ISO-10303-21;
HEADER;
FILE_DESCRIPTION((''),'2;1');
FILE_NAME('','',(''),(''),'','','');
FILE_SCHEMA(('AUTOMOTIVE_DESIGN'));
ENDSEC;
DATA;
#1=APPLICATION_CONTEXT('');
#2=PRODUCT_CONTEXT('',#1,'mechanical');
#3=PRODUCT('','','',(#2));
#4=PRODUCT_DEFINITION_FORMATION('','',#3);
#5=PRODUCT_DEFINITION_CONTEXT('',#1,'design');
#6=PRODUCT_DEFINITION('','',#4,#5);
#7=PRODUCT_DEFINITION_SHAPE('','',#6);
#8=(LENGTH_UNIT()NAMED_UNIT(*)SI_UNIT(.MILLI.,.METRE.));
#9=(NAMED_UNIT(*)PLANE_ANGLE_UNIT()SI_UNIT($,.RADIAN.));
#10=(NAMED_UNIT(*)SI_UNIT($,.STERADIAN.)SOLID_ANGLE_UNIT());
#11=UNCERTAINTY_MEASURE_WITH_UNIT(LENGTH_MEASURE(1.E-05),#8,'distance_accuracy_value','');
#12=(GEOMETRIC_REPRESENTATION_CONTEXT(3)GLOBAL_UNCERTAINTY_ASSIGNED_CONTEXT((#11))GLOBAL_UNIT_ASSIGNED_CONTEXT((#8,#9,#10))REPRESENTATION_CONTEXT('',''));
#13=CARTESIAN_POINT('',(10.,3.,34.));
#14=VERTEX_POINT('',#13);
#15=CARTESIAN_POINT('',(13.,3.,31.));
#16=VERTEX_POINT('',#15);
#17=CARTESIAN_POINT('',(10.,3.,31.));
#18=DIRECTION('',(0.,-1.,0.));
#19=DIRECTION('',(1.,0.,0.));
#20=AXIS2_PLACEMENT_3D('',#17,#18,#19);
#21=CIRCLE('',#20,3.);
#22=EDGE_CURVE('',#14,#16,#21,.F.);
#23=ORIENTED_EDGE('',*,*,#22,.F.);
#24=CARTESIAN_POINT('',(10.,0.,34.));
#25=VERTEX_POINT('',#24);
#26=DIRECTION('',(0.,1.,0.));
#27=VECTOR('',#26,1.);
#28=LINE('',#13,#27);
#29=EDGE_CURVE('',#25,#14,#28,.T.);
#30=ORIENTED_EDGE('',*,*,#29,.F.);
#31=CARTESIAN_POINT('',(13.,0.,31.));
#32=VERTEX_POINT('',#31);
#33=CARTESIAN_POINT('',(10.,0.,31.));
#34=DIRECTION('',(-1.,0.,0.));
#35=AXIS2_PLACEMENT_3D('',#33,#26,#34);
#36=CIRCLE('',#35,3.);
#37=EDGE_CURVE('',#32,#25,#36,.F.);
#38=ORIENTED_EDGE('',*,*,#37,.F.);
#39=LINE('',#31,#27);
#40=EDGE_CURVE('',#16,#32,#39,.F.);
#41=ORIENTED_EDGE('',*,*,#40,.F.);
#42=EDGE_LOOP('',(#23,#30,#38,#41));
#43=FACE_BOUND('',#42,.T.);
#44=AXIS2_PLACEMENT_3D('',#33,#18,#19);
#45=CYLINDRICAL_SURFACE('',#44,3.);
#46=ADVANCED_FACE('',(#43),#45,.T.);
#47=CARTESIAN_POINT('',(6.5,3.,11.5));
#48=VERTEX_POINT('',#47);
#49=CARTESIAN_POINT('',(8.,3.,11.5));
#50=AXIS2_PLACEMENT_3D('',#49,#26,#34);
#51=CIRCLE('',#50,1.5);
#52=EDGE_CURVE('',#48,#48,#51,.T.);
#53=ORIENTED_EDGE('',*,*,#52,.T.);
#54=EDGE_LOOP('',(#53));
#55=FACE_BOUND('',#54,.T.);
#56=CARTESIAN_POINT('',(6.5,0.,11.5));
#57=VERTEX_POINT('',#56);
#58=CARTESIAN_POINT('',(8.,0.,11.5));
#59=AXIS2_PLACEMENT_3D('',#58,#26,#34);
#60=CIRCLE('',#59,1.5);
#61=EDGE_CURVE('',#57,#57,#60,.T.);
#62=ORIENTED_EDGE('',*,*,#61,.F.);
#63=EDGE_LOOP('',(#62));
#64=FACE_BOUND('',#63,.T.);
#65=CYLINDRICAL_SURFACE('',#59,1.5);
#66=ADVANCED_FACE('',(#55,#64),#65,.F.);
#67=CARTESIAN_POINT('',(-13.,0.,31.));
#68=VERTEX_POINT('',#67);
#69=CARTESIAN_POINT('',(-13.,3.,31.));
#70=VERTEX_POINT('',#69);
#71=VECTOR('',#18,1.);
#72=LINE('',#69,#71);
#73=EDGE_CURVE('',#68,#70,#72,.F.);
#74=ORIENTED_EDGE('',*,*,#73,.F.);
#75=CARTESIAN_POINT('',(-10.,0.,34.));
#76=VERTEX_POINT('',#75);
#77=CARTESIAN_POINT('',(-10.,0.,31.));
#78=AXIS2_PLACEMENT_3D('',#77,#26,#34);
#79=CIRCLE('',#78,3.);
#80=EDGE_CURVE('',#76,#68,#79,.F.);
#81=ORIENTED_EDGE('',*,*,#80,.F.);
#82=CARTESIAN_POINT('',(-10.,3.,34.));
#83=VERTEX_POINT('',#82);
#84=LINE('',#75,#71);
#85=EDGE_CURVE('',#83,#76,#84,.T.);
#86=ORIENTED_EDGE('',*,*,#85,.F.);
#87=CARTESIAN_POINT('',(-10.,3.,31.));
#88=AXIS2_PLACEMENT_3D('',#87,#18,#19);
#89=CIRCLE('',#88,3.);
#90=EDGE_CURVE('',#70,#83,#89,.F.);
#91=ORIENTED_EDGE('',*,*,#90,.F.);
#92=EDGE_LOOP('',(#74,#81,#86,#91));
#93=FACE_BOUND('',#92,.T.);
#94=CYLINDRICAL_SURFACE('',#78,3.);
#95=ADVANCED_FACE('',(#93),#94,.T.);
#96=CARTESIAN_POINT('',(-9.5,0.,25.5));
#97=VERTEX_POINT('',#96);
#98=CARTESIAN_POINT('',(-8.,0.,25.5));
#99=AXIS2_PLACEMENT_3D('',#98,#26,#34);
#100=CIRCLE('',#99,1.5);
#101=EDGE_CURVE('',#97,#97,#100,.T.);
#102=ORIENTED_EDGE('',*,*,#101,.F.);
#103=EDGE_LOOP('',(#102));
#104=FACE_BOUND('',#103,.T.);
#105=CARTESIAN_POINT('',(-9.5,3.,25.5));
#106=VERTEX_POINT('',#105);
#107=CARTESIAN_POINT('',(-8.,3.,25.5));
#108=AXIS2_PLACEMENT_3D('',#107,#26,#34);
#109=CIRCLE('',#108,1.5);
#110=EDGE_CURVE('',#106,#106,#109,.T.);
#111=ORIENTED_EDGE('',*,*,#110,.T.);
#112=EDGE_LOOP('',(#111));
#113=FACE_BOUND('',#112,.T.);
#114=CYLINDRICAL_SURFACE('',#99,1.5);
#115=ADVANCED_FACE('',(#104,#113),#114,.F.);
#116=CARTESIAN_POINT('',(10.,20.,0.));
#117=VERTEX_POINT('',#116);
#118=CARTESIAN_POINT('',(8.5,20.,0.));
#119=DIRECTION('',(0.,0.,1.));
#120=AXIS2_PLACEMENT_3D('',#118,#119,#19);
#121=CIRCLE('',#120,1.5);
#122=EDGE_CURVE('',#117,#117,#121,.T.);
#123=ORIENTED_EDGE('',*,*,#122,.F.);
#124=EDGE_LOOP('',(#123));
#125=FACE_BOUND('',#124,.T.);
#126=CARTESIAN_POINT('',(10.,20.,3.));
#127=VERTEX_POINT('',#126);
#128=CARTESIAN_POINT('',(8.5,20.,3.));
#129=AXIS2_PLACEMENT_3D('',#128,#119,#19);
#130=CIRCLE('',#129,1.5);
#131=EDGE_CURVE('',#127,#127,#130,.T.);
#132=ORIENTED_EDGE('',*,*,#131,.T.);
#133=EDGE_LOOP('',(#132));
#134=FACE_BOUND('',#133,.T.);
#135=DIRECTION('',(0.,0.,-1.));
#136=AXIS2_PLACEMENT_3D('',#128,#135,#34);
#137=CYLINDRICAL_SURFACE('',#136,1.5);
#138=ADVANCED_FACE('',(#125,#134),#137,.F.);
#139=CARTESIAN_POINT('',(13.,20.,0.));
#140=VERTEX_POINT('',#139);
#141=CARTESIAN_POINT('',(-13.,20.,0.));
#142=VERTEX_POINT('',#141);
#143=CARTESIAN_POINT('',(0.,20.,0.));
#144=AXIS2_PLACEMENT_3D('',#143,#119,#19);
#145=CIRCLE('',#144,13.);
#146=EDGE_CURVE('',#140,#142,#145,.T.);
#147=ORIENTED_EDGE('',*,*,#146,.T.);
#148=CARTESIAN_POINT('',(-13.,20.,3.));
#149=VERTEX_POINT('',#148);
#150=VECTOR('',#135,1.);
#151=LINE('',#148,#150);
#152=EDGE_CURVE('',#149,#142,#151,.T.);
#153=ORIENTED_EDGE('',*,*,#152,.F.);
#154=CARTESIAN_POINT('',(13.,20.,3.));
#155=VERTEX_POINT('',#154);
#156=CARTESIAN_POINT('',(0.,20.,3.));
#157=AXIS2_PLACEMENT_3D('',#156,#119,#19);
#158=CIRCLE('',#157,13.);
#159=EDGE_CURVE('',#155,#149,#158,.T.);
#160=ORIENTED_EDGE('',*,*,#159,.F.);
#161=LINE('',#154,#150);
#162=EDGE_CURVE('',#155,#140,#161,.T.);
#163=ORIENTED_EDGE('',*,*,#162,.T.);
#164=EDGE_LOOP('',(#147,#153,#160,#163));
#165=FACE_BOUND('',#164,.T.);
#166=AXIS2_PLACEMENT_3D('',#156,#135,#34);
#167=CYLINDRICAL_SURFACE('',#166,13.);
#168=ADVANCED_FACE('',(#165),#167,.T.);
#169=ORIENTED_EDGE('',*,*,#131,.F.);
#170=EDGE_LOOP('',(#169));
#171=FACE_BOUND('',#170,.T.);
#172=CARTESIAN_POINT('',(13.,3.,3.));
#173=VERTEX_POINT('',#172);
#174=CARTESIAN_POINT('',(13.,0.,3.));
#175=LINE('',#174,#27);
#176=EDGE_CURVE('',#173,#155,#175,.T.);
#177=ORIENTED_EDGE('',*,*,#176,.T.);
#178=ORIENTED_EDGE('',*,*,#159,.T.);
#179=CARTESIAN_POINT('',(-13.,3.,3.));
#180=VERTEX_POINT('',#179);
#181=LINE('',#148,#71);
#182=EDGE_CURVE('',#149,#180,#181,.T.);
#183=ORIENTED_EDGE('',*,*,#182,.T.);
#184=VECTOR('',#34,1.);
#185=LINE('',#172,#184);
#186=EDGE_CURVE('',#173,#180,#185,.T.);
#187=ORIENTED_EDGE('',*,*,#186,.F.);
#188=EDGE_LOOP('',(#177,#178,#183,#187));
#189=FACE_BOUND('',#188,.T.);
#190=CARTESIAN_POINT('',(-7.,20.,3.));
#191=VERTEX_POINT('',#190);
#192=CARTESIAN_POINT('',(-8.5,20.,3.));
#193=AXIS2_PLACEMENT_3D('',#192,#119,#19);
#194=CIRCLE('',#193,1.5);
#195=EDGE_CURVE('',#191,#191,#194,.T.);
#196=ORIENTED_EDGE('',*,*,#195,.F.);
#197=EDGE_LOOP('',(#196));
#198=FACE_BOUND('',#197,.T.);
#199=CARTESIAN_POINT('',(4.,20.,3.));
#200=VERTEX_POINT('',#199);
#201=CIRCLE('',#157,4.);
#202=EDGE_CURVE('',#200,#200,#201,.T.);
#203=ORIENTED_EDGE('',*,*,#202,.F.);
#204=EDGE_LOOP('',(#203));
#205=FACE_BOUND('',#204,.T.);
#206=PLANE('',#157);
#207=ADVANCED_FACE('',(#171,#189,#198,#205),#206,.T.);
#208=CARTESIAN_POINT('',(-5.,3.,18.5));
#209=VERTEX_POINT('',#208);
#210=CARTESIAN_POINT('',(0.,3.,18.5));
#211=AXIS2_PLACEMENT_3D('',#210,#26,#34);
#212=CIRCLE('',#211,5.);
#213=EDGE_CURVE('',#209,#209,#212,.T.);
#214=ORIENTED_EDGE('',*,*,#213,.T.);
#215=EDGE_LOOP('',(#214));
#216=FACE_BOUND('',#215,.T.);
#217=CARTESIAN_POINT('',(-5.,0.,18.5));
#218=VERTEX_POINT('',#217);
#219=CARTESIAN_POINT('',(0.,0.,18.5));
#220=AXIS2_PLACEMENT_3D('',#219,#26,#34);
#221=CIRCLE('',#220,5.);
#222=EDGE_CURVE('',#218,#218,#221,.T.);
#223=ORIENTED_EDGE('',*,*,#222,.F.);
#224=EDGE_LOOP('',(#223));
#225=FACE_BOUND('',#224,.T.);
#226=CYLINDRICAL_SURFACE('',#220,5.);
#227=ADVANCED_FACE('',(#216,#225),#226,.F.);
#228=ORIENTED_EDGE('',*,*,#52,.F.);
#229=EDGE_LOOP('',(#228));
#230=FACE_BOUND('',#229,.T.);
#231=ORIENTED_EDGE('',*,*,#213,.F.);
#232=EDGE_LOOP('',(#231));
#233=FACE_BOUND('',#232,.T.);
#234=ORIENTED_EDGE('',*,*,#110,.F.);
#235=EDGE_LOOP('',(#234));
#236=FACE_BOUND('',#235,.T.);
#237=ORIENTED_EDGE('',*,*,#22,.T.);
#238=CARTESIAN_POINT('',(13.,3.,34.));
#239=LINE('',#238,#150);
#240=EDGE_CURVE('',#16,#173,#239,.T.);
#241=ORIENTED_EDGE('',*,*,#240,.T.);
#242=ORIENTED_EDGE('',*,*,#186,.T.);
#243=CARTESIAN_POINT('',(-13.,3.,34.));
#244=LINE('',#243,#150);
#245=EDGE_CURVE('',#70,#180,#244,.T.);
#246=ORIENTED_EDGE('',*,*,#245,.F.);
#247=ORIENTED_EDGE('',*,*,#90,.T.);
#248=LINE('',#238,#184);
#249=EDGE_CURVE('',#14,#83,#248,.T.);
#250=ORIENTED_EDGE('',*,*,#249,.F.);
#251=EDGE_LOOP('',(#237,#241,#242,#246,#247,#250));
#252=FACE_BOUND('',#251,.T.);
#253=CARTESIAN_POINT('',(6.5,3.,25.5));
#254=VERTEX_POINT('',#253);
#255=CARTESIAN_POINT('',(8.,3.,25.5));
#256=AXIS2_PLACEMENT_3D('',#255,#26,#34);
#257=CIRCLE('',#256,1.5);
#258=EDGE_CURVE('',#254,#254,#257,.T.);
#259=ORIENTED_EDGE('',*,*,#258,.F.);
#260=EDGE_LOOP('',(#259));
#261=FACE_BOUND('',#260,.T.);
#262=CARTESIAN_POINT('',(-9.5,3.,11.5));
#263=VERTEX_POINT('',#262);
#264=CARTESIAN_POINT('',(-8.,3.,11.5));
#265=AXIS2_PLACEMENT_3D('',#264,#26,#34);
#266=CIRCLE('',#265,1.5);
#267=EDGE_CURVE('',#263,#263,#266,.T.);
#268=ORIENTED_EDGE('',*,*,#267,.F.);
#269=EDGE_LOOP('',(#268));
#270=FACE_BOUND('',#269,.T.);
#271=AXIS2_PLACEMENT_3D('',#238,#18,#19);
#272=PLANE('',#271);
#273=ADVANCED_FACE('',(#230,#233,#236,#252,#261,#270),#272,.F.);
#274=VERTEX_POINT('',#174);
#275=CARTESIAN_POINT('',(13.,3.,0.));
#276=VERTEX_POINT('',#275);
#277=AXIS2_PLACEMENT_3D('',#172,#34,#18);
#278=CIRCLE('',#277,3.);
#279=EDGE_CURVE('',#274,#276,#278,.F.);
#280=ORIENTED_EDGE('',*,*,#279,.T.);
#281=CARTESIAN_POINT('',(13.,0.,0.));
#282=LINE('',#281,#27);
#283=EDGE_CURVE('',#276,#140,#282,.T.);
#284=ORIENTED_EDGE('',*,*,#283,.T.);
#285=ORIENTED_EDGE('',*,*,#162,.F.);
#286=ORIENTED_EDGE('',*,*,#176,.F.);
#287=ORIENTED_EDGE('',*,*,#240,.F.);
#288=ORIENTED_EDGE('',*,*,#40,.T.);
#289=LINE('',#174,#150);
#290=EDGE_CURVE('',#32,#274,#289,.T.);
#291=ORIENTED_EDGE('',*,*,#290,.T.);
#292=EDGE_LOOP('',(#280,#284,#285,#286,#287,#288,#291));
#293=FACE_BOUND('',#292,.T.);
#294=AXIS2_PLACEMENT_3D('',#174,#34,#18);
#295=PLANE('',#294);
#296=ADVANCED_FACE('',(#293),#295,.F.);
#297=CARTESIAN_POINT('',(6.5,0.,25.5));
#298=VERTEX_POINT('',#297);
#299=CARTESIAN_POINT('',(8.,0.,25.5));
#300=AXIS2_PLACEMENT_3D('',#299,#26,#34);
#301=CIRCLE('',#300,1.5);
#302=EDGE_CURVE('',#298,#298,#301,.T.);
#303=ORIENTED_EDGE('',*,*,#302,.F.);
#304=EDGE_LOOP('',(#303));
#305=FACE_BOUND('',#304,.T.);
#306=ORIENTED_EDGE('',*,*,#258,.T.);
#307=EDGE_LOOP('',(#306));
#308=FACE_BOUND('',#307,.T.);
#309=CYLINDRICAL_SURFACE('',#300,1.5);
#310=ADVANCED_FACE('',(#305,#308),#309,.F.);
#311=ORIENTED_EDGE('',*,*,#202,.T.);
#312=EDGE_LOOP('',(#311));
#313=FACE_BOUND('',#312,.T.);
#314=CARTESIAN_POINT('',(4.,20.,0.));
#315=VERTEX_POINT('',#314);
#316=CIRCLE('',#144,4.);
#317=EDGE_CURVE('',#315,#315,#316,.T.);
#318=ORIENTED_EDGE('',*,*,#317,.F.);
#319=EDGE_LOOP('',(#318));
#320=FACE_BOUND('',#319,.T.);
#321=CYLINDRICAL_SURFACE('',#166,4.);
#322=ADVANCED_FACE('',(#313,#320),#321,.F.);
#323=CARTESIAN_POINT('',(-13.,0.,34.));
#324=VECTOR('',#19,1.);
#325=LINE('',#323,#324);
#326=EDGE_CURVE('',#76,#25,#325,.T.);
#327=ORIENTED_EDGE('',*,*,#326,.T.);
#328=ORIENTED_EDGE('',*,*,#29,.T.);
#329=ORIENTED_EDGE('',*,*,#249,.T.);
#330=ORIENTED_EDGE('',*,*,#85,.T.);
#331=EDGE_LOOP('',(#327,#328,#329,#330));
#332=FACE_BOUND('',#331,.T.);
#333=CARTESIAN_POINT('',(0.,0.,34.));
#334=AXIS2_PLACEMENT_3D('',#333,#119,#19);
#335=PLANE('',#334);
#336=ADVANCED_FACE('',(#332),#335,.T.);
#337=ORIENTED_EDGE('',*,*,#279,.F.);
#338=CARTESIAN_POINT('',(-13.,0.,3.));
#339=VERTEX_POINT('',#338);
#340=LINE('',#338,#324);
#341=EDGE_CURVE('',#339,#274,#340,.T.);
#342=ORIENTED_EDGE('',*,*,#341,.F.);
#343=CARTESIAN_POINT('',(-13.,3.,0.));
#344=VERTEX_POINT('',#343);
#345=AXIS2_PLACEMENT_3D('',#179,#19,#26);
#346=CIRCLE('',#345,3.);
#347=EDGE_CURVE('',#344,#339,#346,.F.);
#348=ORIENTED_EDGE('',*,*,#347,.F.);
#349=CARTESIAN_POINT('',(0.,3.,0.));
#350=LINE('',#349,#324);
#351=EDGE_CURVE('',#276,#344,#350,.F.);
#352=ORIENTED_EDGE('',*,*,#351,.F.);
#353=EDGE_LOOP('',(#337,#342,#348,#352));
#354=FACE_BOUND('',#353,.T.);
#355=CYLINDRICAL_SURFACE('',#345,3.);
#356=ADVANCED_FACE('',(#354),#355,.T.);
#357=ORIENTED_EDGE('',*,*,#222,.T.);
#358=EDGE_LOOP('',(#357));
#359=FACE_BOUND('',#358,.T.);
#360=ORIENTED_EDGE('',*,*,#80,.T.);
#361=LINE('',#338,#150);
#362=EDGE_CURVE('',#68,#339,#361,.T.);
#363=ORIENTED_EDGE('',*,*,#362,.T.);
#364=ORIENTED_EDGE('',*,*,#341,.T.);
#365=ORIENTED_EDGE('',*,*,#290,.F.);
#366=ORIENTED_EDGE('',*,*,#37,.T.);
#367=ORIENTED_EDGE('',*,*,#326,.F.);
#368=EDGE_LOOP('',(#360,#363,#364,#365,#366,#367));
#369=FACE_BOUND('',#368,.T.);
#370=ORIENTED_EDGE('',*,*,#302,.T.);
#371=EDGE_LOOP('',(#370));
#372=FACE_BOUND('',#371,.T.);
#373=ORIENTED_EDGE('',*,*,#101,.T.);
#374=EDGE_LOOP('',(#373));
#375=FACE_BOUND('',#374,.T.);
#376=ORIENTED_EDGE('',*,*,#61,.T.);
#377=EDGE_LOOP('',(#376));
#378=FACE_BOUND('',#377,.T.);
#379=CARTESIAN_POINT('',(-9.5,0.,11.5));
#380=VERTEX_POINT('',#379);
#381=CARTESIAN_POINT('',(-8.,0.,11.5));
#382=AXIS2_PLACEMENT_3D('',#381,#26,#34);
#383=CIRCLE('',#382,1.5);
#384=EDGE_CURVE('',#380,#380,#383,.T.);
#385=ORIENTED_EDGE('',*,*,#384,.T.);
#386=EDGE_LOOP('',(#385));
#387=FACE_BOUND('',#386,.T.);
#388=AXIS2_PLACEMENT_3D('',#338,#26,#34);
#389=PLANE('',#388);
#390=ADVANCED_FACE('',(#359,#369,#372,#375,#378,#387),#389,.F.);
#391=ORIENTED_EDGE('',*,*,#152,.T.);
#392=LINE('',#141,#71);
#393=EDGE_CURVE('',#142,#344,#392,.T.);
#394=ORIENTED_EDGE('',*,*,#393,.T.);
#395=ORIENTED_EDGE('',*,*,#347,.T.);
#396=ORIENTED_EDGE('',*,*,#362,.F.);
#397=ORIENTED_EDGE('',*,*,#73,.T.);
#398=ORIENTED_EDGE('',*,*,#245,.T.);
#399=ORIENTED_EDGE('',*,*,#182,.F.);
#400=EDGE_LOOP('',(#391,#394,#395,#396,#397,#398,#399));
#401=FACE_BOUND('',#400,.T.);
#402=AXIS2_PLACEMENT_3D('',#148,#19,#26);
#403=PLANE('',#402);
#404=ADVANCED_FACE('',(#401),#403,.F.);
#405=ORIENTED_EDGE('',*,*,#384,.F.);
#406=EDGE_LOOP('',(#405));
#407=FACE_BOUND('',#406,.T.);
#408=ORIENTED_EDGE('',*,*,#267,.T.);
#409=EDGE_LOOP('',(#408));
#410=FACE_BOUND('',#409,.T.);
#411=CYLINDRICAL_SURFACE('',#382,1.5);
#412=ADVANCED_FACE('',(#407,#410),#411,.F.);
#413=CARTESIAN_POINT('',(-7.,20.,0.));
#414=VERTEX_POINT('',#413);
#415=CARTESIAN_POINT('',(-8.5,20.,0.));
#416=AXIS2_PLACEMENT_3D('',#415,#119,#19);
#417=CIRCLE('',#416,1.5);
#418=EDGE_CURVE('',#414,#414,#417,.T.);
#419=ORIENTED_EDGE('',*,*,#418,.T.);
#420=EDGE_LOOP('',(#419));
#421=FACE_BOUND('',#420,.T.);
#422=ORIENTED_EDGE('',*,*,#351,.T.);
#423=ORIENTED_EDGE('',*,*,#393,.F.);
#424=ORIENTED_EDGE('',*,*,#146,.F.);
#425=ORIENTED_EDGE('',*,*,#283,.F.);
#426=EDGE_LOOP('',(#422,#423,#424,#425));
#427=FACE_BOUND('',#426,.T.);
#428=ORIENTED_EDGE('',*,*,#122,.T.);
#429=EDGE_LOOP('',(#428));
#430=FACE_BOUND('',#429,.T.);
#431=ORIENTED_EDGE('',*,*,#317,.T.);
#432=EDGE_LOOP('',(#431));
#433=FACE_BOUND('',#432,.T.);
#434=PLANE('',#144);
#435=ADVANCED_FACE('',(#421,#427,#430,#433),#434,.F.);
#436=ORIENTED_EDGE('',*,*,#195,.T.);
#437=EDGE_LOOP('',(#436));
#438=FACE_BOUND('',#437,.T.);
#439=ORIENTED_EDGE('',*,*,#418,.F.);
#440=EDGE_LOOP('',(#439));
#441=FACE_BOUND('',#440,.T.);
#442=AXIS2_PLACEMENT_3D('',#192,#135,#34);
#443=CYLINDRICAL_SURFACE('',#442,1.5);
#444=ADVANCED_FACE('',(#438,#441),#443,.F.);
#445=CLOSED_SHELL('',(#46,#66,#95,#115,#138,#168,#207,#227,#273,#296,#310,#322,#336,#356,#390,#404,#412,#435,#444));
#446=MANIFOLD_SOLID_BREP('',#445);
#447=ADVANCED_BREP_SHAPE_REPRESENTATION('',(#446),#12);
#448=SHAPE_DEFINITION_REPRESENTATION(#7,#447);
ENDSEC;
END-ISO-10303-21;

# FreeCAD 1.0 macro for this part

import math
import FreeCAD as App
import Part
import Sketcher
Q = App.Units.Quantity


def edges_at(feature, points):
    """Names of the edges that pass closest to the given points."""
    edges = feature.Shape.Edges
    near = lambda p: min(range(len(edges)), key=lambda i: edges[i].distToShape(Part.Vertex(*p))[0])
    return sorted({f"Edge{near(p) + 1}" for p in points})

doc = App.newDocument("Part")
body = doc.addObject("PartDesign::Body", "Body")

# Sketch on XY plane
sketch1 = body.newObject("Sketcher::SketchObject", "Sketch")
sketch1.AttachmentSupport = (doc.getObject("XY_Plane"), [""])
sketch1.MapMode = "FlatFace"
sketch1.addGeometry(Part.LineSegment(App.Vector(-13, 0, 0), App.Vector(13, 0, 0)), False)
sketch1.addGeometry(Part.LineSegment(App.Vector(13, 0, 0), App.Vector(13, 20, 0)), False)
sketch1.addGeometry(Part.ArcOfCircle(Part.Circle(App.Vector(0, 20, 0), App.Vector(0, 0, 1), 13), math.radians(0), math.radians(180)), False)
sketch1.addGeometry(Part.LineSegment(App.Vector(-13, 20, 0), App.Vector(-13, 0, 0)), False)
sketch1.addGeometry(Part.Circle(App.Vector(-8.5, 20, 0), App.Vector(0, 0, 1), 1.5), False)
sketch1.addGeometry(Part.Circle(App.Vector(0, 20, 0), App.Vector(0, 0, 1), 4), False)
sketch1.addGeometry(Part.Circle(App.Vector(8.5, 20, 0), App.Vector(0, 0, 1), 1.5), False)
sketch1.addConstraint(Sketcher.Constraint("Coincident", 0, 2, 1, 1))
sketch1.addConstraint(Sketcher.Constraint("Tangent", 1, 2, 2, 1))
sketch1.addConstraint(Sketcher.Constraint("Tangent", 2, 2, 3, 1))
sketch1.addConstraint(Sketcher.Constraint("Coincident", 3, 2, 0, 1))
sketch1.addConstraint(Sketcher.Constraint("Horizontal", 0))
sketch1.addConstraint(Sketcher.Constraint("Vertical", 1))
sketch1.addConstraint(Sketcher.Constraint("Vertical", 3))
sketch1.addConstraint(Sketcher.Constraint("Coincident", 5, 3, 2, 3))
sketch1.addConstraint(Sketcher.Constraint("Equal", 4, 6))
sketch1.addConstraint(Sketcher.Constraint("Symmetric", 0, 2, 3, 2, -1, 1))
sketch1.addConstraint(Sketcher.Constraint("Symmetric", 4, 3, 6, 3, -2))
sketch1.addConstraint(Sketcher.Constraint("Horizontal", 2, 3, 4, 3))
sketch1.addConstraint(Sketcher.Constraint("Diameter", 4, Q("3 mm")))
sketch1.addConstraint(Sketcher.Constraint("Diameter", 5, Q("8 mm")))
sketch1.addConstraint(Sketcher.Constraint("Radius", 2, Q("13 mm")))
sketch1.addConstraint(Sketcher.Constraint("DistanceY", 1, 1, 1, 2, Q("20 mm")))
sketch1.addConstraint(Sketcher.Constraint("DistanceX", 4, 3, 6, 3, Q("17 mm")))
pad1 = body.newObject("PartDesign::Pad", "Pad")
pad1.Profile = sketch1
pad1.Length = 3

# Sketch on XY plane
sketch2 = body.newObject("Sketcher::SketchObject", "Sketch001")
sketch2.AttachmentSupport = (doc.getObject("XY_Plane"), [""])
sketch2.MapMode = "FlatFace"
sketch2.AttachmentOffset = App.Placement(App.Vector(0, 0, 3), App.Rotation())
sketch2.addGeometry(Part.LineSegment(App.Vector(-13, 3, 0), App.Vector(-13, 0, 0)), False)
sketch2.addGeometry(Part.LineSegment(App.Vector(-13, 0, 0), App.Vector(13, 0, 0)), False)
sketch2.addGeometry(Part.LineSegment(App.Vector(13, 0, 0), App.Vector(13, 3, 0)), False)
sketch2.addGeometry(Part.LineSegment(App.Vector(13, 3, 0), App.Vector(-13, 3, 0)), False)
sketch2.addConstraint(Sketcher.Constraint("Coincident", 0, 2, 1, 1))
sketch2.addConstraint(Sketcher.Constraint("Coincident", 1, 2, 2, 1))
sketch2.addConstraint(Sketcher.Constraint("Coincident", 2, 2, 3, 1))
sketch2.addConstraint(Sketcher.Constraint("Coincident", 3, 2, 0, 1))
sketch2.addConstraint(Sketcher.Constraint("Vertical", 0))
sketch2.addConstraint(Sketcher.Constraint("Horizontal", 1))
sketch2.addConstraint(Sketcher.Constraint("Vertical", 2))
sketch2.addConstraint(Sketcher.Constraint("Horizontal", 3))
sketch2.addConstraint(Sketcher.Constraint("Symmetric", 0, 2, 1, 2, -1, 1))
sketch2.addConstraint(Sketcher.Constraint("DistanceX", 1, 1, 1, 2, Q("26 mm")))
sketch2.addConstraint(Sketcher.Constraint("DistanceY", 0, 2, 0, 1, Q("3 mm")))
pad2 = body.newObject("PartDesign::Pad", "Pad001")
pad2.Profile = sketch2
pad2.Length = 31

# Sketch on XZ plane
sketch3 = body.newObject("Sketcher::SketchObject", "Sketch002")
sketch3.AttachmentSupport = (doc.getObject("XZ_Plane"), [""])
sketch3.MapMode = "FlatFace"
sketch3.AttachmentOffset = App.Placement(App.Vector(0, 0, -3), App.Rotation())
sketch3.addGeometry(Part.Circle(App.Vector(0, 18.5, 0), App.Vector(0, 0, 1), 5), False)
sketch3.addGeometry(Part.Circle(App.Vector(-8, 11.5, 0), App.Vector(0, 0, 1), 1.5), False)
sketch3.addGeometry(Part.Circle(App.Vector(8, 11.5, 0), App.Vector(0, 0, 1), 1.5), False)
sketch3.addGeometry(Part.Circle(App.Vector(8, 25.5, 0), App.Vector(0, 0, 1), 1.5), False)
sketch3.addGeometry(Part.Circle(App.Vector(-8, 25.5, 0), App.Vector(0, 0, 1), 1.5), False)
sketch3.addConstraint(Sketcher.Constraint("Equal", 1, 2))
sketch3.addConstraint(Sketcher.Constraint("Equal", 2, 3))
sketch3.addConstraint(Sketcher.Constraint("Equal", 3, 4))
sketch3.addConstraint(Sketcher.Constraint("Symmetric", 1, 3, 2, 3, -2))
sketch3.addConstraint(Sketcher.Constraint("Symmetric", 3, 3, 4, 3, -2))
sketch3.addConstraint(Sketcher.Constraint("PointOnObject", 0, 3, -2))
sketch3.addConstraint(Sketcher.Constraint("Vertical", 2, 3, 3, 3))
sketch3.addConstraint(Sketcher.Constraint("Diameter", 0, Q("10 mm")))
sketch3.addConstraint(Sketcher.Constraint("Diameter", 1, Q("3 mm")))
sketch3.addConstraint(Sketcher.Constraint("DistanceX", 1, 3, -1, 1, Q("8 mm")))
sketch3.addConstraint(Sketcher.Constraint("DistanceY", 1, 3, 0, 3, Q("7 mm")))
sketch3.addConstraint(Sketcher.Constraint("DistanceY", 0, 3, 3, 3, Q("7 mm")))
sketch3.addConstraint(Sketcher.Constraint("DistanceY", -1, 1, 0, 3, Q("18.5 mm")))
pocket1 = body.newObject("PartDesign::Pocket", "Pocket")
pocket1.Profile = sketch3
pocket1.Type = "ThroughAll"
pocket1.Reversed = True
doc.recompute()

fillet = body.newObject("PartDesign::Fillet", "Fillet")
fillet.Base = (pocket1, edges_at(pocket1, [(-13, 1.5, 34), (13, 1.5, 34)]))
fillet.Radius = 3
doc.recompute()

fillet2 = body.newObject("PartDesign::Fillet", "Fillet001")
fillet2.Base = (fillet, edges_at(fillet, [(0, 0, 0)]))
fillet2.Radius = 3

doc.recompute()
